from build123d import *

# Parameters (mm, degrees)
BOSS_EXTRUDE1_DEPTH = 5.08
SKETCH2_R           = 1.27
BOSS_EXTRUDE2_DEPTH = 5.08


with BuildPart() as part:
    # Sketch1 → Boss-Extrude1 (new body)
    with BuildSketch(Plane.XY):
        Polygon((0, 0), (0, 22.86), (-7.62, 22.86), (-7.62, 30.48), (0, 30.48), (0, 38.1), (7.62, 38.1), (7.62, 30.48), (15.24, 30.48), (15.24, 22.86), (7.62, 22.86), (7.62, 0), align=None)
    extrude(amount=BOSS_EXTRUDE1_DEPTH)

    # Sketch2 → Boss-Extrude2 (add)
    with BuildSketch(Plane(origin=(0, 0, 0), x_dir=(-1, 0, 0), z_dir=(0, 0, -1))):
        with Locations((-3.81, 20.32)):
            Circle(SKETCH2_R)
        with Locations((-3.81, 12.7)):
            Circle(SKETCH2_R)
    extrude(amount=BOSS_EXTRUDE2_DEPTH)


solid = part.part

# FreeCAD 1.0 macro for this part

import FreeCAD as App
import Part
import Sketcher
from FreeCAD import Vector
Q = App.Units.Quantity


def add_polygon(sketch, points):
    """Adds a closed chain of lines whose ends are joined by coincident constraints."""
    first, n = sketch.GeometryCount, len(points)
    for a, b in zip(points, points[1:] + points[:1]):
        sketch.addGeometry(Part.LineSegment(App.Vector(*a, 0), App.Vector(*b, 0)), False)
    for i in range(n):
        sketch.addConstraint(Sketcher.Constraint("Coincident", first + i, 2, first + (i + 1) % n, 1))

doc = App.newDocument("Part")
body = doc.addObject("PartDesign::Body", "Body")

# Sketch on XY plane
sketch1 = body.newObject("Sketcher::SketchObject", "Sketch")
sketch1.AttachmentSupport = (doc.getObject("XY_Plane"), [""])
sketch1.MapMode = "FlatFace"
add_polygon(sketch1, [(0, 23), (0, 0), (8, 0), (8, 23), (15, 23), (15, 30), (8, 30), (8, 38), (0, 38), (0, 30), (-8, 30), (-8, 23)])  # lines 0-11
sketch1.addConstraint([
    Sketcher.Constraint("Vertical", 0),
    Sketcher.Constraint("Horizontal", 1),
    Sketcher.Constraint("Vertical", 2),
    Sketcher.Constraint("Horizontal", 3),
    Sketcher.Constraint("Vertical", 4),
    Sketcher.Constraint("Horizontal", 5),
    Sketcher.Constraint("Vertical", 6),
    Sketcher.Constraint("Horizontal", 7),
    Sketcher.Constraint("Vertical", 8),
    Sketcher.Constraint("Horizontal", 9),
    Sketcher.Constraint("Vertical", 10),
    Sketcher.Constraint("Horizontal", 11),
    Sketcher.Constraint("Coincident", 0, 2, -1, 1),
    Sketcher.Constraint("Symmetric", 5, 2, 9, 2, -2),
    Sketcher.Constraint("Symmetric", 2, 2, 10, 2, -2),
    Sketcher.Constraint("PointOnObject", 7, 2, -2),
    Sketcher.Constraint("Equal", 1, 3),
    Sketcher.Constraint("Equal", 11, 4),
    Sketcher.Constraint("Equal", 4, 6),
    Sketcher.Constraint("DistanceX", 1, 1, 1, 2, Q("0.3 in")),
    Sketcher.Constraint("DistanceY", 0, 2, 0, 1, Q("0.9 in")),
])
pad1 = body.newObject("PartDesign::Pad", "Pad")
pad1.Profile = sketch1
pad1.Length = Q("0.2 in")

# Sketch on XY plane
sketch2 = body.newObject("Sketcher::SketchObject", "Sketch001")
sketch2.AttachmentSupport = (doc.getObject("XY_Plane"), [""])
sketch2.MapMode = "FlatFace"
sketch2.addGeometry([
    Part.Circle(Vector(3.8, 20.3, 0), Vector(0, 0, 1), 1.3),
    Part.Circle(Vector(3.8, 12.7, 0), Vector(0, 0, 1), 1.3),
], False)
sketch2.addConstraint([
    Sketcher.Constraint("Equal", 0, 1),
    Sketcher.Constraint("Vertical", 0, 3, 1, 3),
    Sketcher.Constraint("Diameter", 0, Q("0.1 in")),
    Sketcher.Constraint("DistanceY", -1, 1, 0, 3, Q("0.8 in")),
    Sketcher.Constraint("DistanceY", -1, 1, 1, 3, Q("0.5 in")),
    Sketcher.Constraint("DistanceX", -1, 1, 0, 3, Q("0.15 in")),
])
pad2 = body.newObject("PartDesign::Pad", "Pad001")
pad2.Profile = sketch2
pad2.Length = Q("0.2 in")
pad2.Reversed = True

doc.recompute()
